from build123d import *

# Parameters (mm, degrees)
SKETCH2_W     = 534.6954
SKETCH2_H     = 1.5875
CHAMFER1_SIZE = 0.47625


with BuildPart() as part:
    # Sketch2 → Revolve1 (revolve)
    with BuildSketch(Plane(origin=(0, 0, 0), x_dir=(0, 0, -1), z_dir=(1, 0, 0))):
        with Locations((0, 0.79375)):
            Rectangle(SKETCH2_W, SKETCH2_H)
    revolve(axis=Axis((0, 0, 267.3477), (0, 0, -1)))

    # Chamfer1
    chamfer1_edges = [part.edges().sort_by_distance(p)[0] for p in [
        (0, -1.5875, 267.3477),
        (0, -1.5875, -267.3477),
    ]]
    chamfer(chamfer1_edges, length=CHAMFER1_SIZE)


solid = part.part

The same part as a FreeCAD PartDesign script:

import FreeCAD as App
import Part
import Sketcher
from FreeCAD import Vector
Q = App.Units.Quantity


def edges_at(feature, points):
    """Names of the edges that pass closest to the given points."""
    edges = feature.Shape.Edges
    near = lambda p: min(range(len(edges)), key=lambda i: edges[i].distToShape(Part.Vertex(*p))[0])
    return sorted({f"Edge{near(p) + 1}" for p in points})


def add_polygon(sketch, points):
    """Adds a closed chain of lines whose ends are joined by coincident constraints."""
    first, n = sketch.GeometryCount, len(points)
    for a, b in zip(points, points[1:] + points[:1]):
        sketch.addGeometry(Part.LineSegment(App.Vector(*a, 0), App.Vector(*b, 0)), False)
    for i in range(n):
        sketch.addConstraint(Sketcher.Constraint("Coincident", first + i, 2, first + (i + 1) % n, 1))

doc = App.newDocument("Part")
body = doc.addObject("PartDesign::Body", "Body")

# Sketch on YZ plane
sketch1 = body.newObject("Sketcher::SketchObject", "Sketch")
sketch1.AttachmentSupport = (doc.getObject("YZ_Plane"), [""])
sketch1.MapMode = "FlatFace"
add_polygon(sketch1, [(1.6, 267.3), (0, 267.3), (0, -267.3), (1.6, -267.3)])  # lines 0-3
sketch1.addConstraint(Sketcher.Constraint("Horizontal", 0))
sketch1.addConstraint(Sketcher.Constraint("Vertical", 1))
sketch1.addConstraint(Sketcher.Constraint("Horizontal", 2))
sketch1.addConstraint(Sketcher.Constraint("Vertical", 3))
sketch1.addConstraint(Sketcher.Constraint("Symmetric", 0, 2, 1, 2, -1, 1))
sketch1.addConstraint(Sketcher.Constraint("DistanceX", 0, 2, 0, 1, Q("0.0625 in")))
sketch1.addConstraint(Sketcher.Constraint("DistanceY", 1, 2, 1, 1, Q("21.051 in")))
revolution = body.newObject("PartDesign::Revolution", "Revolution")
revolution.Profile = sketch1
revolution.ReferenceAxis = (sketch1, ["V_Axis"])
revolution.Angle = 360
doc.recompute()

chamfer = body.newObject("PartDesign::Chamfer", "Chamfer")
chamfer.Base = (revolution, edges_at(revolution, [(0, -1.587, 267.348), (0, -1.587, -267.348)]))
chamfer.Size = 0.47625

doc.recompute()
